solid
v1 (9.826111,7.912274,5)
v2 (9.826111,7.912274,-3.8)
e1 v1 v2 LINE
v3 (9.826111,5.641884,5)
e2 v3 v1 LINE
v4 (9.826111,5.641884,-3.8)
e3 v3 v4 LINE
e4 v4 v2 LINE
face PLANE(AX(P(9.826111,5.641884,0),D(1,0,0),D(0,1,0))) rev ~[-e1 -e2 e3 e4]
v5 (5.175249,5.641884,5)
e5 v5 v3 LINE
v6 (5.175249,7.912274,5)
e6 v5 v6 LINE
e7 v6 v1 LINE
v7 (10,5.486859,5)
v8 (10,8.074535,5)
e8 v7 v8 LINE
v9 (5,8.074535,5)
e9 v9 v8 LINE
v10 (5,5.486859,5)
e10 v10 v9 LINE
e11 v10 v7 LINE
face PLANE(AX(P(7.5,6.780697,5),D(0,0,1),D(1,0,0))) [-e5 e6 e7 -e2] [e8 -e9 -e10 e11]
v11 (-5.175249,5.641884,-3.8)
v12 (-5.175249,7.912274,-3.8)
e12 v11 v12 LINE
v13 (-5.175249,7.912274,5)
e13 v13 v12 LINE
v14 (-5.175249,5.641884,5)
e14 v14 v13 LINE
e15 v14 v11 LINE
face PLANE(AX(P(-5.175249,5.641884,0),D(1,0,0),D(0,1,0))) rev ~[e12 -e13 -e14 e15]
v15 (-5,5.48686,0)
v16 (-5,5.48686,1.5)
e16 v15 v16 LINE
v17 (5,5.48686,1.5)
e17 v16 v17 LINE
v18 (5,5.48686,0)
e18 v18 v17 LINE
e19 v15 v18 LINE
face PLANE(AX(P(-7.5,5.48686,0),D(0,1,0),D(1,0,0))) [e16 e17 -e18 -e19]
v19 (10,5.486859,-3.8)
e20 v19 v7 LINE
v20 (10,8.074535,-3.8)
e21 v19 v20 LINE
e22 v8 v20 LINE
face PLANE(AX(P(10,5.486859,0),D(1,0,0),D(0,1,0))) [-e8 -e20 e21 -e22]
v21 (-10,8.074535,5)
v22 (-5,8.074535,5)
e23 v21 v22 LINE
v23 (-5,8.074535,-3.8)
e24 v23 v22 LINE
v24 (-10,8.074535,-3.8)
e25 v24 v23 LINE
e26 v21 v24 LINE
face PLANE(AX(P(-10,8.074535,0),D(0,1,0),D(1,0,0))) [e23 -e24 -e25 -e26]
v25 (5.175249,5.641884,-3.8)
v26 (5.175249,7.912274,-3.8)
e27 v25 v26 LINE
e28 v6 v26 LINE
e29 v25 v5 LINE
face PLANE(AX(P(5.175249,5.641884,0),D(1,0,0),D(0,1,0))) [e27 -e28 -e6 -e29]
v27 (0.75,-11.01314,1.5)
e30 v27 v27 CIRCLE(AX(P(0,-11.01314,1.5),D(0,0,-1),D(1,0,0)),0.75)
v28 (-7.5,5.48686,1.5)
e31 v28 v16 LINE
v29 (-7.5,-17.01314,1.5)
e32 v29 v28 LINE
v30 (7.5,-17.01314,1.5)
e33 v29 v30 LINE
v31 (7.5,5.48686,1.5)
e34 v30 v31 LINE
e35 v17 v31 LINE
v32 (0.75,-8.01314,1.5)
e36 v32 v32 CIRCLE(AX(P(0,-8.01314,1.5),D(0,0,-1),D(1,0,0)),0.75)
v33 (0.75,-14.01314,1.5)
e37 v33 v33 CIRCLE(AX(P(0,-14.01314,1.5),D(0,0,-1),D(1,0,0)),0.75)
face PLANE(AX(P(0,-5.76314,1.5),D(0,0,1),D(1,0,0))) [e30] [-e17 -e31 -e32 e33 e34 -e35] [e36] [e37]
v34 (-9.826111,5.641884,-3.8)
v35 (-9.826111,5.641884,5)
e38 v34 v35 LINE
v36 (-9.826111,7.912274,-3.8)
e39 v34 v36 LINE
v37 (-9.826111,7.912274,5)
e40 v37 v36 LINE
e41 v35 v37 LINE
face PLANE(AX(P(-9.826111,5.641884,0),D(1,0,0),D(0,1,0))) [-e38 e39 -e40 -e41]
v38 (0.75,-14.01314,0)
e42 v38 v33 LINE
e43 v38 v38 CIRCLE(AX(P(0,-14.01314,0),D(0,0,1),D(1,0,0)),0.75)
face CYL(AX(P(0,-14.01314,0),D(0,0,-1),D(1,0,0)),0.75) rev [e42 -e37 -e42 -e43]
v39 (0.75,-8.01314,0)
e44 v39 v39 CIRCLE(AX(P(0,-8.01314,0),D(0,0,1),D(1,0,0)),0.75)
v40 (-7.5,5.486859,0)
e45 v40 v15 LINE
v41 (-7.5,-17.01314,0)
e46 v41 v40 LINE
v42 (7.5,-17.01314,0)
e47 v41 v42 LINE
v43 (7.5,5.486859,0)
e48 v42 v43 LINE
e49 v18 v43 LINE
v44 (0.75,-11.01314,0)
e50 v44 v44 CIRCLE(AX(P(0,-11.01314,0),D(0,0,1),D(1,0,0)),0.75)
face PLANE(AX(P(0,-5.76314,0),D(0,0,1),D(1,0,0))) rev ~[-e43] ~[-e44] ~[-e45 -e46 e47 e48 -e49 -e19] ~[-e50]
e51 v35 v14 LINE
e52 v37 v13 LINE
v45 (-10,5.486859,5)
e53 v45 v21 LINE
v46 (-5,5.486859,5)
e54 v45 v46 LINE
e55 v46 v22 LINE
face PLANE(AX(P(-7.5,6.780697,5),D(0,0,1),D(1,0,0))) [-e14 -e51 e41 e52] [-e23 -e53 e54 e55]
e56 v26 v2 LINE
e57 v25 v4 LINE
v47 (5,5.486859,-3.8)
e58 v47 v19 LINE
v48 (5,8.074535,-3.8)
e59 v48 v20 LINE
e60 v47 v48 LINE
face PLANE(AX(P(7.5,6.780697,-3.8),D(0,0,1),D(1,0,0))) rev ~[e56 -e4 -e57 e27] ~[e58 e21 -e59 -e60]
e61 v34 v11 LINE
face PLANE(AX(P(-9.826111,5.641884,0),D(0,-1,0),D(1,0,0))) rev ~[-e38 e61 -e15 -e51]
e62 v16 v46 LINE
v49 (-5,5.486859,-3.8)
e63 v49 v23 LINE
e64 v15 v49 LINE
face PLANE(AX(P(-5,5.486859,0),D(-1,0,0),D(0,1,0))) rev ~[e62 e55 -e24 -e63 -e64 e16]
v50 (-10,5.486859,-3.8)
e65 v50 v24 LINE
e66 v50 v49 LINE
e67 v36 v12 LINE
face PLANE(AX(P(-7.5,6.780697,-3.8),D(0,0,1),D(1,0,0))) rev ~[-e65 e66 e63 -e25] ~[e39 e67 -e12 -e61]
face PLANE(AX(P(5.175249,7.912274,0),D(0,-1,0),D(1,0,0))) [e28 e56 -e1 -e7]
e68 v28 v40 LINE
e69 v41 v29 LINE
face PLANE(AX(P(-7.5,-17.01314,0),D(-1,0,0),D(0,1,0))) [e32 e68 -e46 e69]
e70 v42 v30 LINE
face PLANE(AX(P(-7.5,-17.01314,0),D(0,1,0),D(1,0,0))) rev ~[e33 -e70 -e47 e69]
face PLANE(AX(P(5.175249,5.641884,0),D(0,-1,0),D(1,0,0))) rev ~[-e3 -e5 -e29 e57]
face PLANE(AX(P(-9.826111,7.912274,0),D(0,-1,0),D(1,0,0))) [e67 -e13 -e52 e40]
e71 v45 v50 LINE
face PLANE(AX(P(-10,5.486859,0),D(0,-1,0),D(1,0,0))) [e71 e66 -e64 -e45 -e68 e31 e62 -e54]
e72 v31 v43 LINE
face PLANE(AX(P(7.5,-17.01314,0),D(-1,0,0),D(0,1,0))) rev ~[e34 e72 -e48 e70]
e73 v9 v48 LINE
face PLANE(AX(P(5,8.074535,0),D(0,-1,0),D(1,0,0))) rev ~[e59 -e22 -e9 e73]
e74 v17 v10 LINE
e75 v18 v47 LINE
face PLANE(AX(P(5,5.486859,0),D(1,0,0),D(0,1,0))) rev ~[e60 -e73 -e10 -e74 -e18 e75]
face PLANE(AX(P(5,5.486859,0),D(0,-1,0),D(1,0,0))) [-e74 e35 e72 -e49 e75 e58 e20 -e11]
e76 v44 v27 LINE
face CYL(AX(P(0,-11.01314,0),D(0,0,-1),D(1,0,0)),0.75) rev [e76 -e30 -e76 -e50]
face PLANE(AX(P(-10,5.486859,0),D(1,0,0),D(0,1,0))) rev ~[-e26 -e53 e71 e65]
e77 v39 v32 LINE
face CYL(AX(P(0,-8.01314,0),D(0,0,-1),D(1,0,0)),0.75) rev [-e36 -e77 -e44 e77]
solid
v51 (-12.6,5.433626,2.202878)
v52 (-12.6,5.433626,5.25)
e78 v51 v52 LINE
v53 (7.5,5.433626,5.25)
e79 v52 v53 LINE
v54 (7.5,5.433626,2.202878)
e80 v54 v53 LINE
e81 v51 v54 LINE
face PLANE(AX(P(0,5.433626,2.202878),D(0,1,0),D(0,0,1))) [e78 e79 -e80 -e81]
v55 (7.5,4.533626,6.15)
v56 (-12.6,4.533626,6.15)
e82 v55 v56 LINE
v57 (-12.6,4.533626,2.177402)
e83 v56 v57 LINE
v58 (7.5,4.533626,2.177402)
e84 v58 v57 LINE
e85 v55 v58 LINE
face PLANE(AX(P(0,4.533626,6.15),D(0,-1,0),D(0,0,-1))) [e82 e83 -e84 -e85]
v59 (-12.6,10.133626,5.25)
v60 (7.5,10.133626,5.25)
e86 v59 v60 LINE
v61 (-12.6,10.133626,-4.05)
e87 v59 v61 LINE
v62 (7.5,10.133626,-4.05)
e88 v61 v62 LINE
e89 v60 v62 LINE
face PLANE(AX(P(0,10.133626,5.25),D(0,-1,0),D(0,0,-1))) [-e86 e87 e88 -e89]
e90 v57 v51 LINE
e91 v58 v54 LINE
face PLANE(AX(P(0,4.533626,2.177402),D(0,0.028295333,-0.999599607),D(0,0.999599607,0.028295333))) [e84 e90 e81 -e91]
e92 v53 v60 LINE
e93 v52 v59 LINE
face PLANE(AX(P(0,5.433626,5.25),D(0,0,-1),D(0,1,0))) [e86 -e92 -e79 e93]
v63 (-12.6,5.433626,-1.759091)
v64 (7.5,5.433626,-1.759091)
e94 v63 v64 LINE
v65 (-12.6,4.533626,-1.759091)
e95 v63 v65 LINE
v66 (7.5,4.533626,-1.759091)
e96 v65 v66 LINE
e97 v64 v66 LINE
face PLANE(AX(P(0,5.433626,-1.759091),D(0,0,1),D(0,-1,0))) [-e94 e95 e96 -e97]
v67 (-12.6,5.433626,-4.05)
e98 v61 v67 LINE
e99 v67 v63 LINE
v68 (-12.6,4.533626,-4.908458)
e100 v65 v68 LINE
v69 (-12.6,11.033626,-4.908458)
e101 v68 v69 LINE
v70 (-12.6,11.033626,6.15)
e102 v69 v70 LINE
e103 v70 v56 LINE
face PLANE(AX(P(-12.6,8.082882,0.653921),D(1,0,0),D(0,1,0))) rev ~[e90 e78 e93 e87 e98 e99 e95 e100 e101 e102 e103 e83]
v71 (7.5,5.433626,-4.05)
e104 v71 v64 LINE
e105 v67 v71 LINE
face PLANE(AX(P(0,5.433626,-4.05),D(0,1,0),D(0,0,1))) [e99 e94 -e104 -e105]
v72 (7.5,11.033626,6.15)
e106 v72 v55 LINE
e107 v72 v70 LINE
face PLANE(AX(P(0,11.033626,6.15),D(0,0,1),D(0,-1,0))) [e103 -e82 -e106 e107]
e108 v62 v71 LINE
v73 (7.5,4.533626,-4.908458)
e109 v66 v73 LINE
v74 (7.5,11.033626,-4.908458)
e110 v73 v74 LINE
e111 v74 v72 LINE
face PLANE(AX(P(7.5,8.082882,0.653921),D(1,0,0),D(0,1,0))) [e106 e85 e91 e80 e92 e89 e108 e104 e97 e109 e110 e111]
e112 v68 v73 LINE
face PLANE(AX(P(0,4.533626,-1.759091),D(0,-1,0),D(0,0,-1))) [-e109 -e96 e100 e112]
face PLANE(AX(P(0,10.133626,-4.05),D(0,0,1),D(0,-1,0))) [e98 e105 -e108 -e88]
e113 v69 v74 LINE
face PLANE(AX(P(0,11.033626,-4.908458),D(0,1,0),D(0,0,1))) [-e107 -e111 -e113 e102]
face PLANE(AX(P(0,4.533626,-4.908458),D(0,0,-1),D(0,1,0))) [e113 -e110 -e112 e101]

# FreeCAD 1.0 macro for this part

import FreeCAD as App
import Part
import Sketcher
from FreeCAD import Vector
Q = App.Units.Quantity


def add_polygon(sketch, points):
    """Adds a closed chain of lines whose ends are joined by coincident constraints."""
    first, n = sketch.GeometryCount, len(points)
    for a, b in zip(points, points[1:] + points[:1]):
        sketch.addGeometry(Part.LineSegment(App.Vector(*a, 0), App.Vector(*b, 0)), False)
    for i in range(n):
        sketch.addConstraint(Sketcher.Constraint("Coincident", first + i, 2, first + (i + 1) % n, 1))

doc = App.newDocument("Part")
body = doc.addObject("PartDesign::Body", "Body")

sketch1 = body.newObject("Sketcher::SketchObject", "Sketch")
sketch1.AttachmentSupport = (doc.getObject("XY_Plane"), [""])
sketch1.MapMode = "FlatFace"
add_polygon(sketch1, [(-7.5, 5.48686), (-7.5, -17.01314), (7.5, -17.01314), (7.5, 5.48686)])
sketch1.addConstraint(Sketcher.Constraint("Vertical", 0))
sketch1.addConstraint(Sketcher.Constraint("Horizontal", 1))
sketch1.addConstraint(Sketcher.Constraint("Vertical", 2))
sketch1.addConstraint(Sketcher.Constraint("Horizontal", 3))
sketch1.addConstraint(Sketcher.Constraint("DistanceX", 1, 1, 1, 2, Q("15 mm")))
sketch1.addConstraint(Sketcher.Constraint("DistanceY", 0, 2, 0, 1, Q("22.5 mm")))
sketch1.addConstraint(Sketcher.Constraint("DistanceX", 0, 2, -1, 1, Q("7.5 mm")))
sketch1.addConstraint(Sketcher.Constraint("DistanceY", 0, 2, -1, 1, Q("17.01314 mm")))
pad1 = body.newObject("PartDesign::Pad", "Pad")
pad1.Profile = sketch1
pad1.Length = 1.5

sketch2 = body.newObject("Sketcher::SketchObject", "Sketch001")
sketch2.AttachmentSupport = (doc.getObject("XY_Plane"), [""])
sketch2.MapMode = "FlatFace"
add_polygon(sketch2, [(5, 8.074535), (5, 5.486859), (10, 5.486859), (10, 8.074535)])
add_polygon(sketch2, [(9.826111, 5.641884), (5.175249, 5.641884), (5.175249, 7.912274), (9.826111, 7.912274)])
add_polygon(sketch2, [(-10, 8.074535), (-10, 5.486859), (-5, 5.486859), (-5, 8.074535)])
add_polygon(sketch2, [(-5.175249, 5.641884), (-9.826111, 5.641884), (-9.826111, 7.912274), (-5.175249, 7.912274)])
sketch2.addConstraint(Sketcher.Constraint("Vertical", 0))
sketch2.addConstraint(Sketcher.Constraint("Horizontal", 1))
sketch2.addConstraint(Sketcher.Constraint("Vertical", 2))
sketch2.addConstraint(Sketcher.Constraint("Horizontal", 3))
sketch2.addConstraint(Sketcher.Constraint("Horizontal", 4))
sketch2.addConstraint(Sketcher.Constraint("Vertical", 5))
sketch2.addConstraint(Sketcher.Constraint("Horizontal", 6))
sketch2.addConstraint(Sketcher.Constraint("Vertical", 7))
sketch2.addConstraint(Sketcher.Constraint("Vertical", 8))
sketch2.addConstraint(Sketcher.Constraint("Horizontal", 9))
sketch2.addConstraint(Sketcher.Constraint("Vertical", 10))
sketch2.addConstraint(Sketcher.Constraint("Horizontal", 11))
sketch2.addConstraint(Sketcher.Constraint("Horizontal", 12))
sketch2.addConstraint(Sketcher.Constraint("Vertical", 13))
sketch2.addConstraint(Sketcher.Constraint("Horizontal", 14))
sketch2.addConstraint(Sketcher.Constraint("Vertical", 15))
sketch2.addConstraint(Sketcher.Constraint("Symmetric", 1, 2, 8, 2, -2))
sketch2.addConstraint(Sketcher.Constraint("Symmetric", 3, 2, 10, 2, -2))
sketch2.addConstraint(Sketcher.Constraint("Symmetric", 7, 2, 12, 2, -2))
sketch2.addConstraint(Sketcher.Constraint("Symmetric", 5, 2, 14, 2, -2))
sketch2.addConstraint(Sketcher.Constraint("DistanceX", 1, 1, 1, 2, Q("5 mm")))
sketch2.addConstraint(Sketcher.Constraint("DistanceX", -1, 1, 0, 2, Q("5 mm")))
sketch2.addConstraint(Sketcher.Constraint("DistanceX", 4, 2, 4, 1, Q("4.650861 mm")))
sketch2.addConstraint(Sketcher.Constraint("DistanceY", 5, 1, 5, 2, Q("2.27039 mm")))
sketch2.addConstraint(Sketcher.Constraint("DistanceY", 0, 2, 0, 1, Q("2.587675 mm")))
sketch2.addConstraint(Sketcher.Constraint("DistanceY", -1, 1, 0, 2, Q("5.486859 mm")))
sketch2.addConstraint(Sketcher.Constraint("DistanceX", -1, 1, 4, 2, Q("5.175249 mm")))
sketch2.addConstraint(Sketcher.Constraint("DistanceY", 4, 2, 3, 2, Q("2.432651 mm")))
pad2 = body.newObject("PartDesign::Pad", "Pad001")
pad2.Profile = sketch2
pad2.Type = "TwoLengths"
pad2.Length = 5
pad2.Length2 = 3.8

sketch3 = body.newObject("Sketcher::SketchObject", "Sketch002")
sketch3.AttachmentSupport = (doc.getObject("XY_Plane"), [""])
sketch3.MapMode = "FlatFace"
sketch3.addGeometry(Part.Circle(Vector(0, -14.01314, 0), Vector(0, 0, 1), 0.75), False)
sketch3.addGeometry(Part.Circle(Vector(0, -11.01314, 0), Vector(0, 0, 1), 0.75), False)
sketch3.addGeometry(Part.Circle(Vector(0, -8.01314, 0), Vector(0, 0, 1), 0.75), False)
sketch3.addConstraint(Sketcher.Constraint("Equal", 0, 1))
sketch3.addConstraint(Sketcher.Constraint("Equal", 1, 2))
sketch3.addConstraint(Sketcher.Constraint("PointOnObject", 0, 3, -2))
sketch3.addConstraint(Sketcher.Constraint("PointOnObject", 1, 3, -2))
sketch3.addConstraint(Sketcher.Constraint("PointOnObject", 2, 3, -2))
sketch3.addConstraint(Sketcher.Constraint("Diameter", 0, Q("1.5 mm")))
sketch3.addConstraint(Sketcher.Constraint("DistanceY", 0, 3, 1, 3, Q("3 mm")))
sketch3.addConstraint(Sketcher.Constraint("DistanceY", 1, 3, 2, 3, Q("3 mm")))
sketch3.addConstraint(Sketcher.Constraint("DistanceY", 0, 3, -1, 1, Q("14.01314 mm")))
pocket1 = body.newObject("PartDesign::Pocket", "Pocket")
pocket1.Profile = sketch3
pocket1.Length = 25
pocket1.Reversed = True
body2 = doc.addObject("PartDesign::Body", "Body001")

sketch4 = body2.newObject("Sketcher::SketchObject", "Sketch003")
sketch4.AttachmentSupport = (doc.getObject("YZ_Plane001"), [""])
sketch4.MapMode = "FlatFace"
add_polygon(sketch4, [(4.533626, 2.177402), (5.433626, 2.202878), (5.433626, 5.25), (10.133626, 5.25), (10.133626, -4.05), (5.433626, -4.05), (5.433626, -1.759091), (4.533626, -1.759091), (4.533626, -4.908458), (11.033626, -4.908458), (11.033626, 6.15), (4.533626, 6.15)])
sketch4.addConstraint(Sketcher.Constraint("Vertical", 1))
sketch4.addConstraint(Sketcher.Constraint("Horizontal", 2))
sketch4.addConstraint(Sketcher.Constraint("Vertical", 3))
sketch4.addConstraint(Sketcher.Constraint("Horizontal", 4))
sketch4.addConstraint(Sketcher.Constraint("Vertical", 5))
sketch4.addConstraint(Sketcher.Constraint("Horizontal", 6))
sketch4.addConstraint(Sketcher.Constraint("Vertical", 7))
sketch4.addConstraint(Sketcher.Constraint("Horizontal", 8))
sketch4.addConstraint(Sketcher.Constraint("Vertical", 9))
sketch4.addConstraint(Sketcher.Constraint("Horizontal", 10))
sketch4.addConstraint(Sketcher.Constraint("Vertical", 11))
sketch4.addConstraint(Sketcher.Constraint("Vertical", 1, 2, 4, 2))
sketch4.addConstraint(Sketcher.Constraint("Vertical", 7, 2, 10, 2))
sketch4.addConstraint(Sketcher.Constraint("DistanceX", 2, 1, 2, 2, Q("4.7 mm")))
sketch4.addConstraint(Sketcher.Constraint("DistanceX", 6, 2, 6, 1, Q("0.9 mm")))
sketch4.addConstraint(Sketcher.Constraint("DistanceX", 8, 1, 8, 2, Q("6.5 mm")))
sketch4.addConstraint(Sketcher.Constraint("DistanceY", 3, 2, 3, 1, Q("9.3 mm")))
sketch4.addConstraint(Sketcher.Constraint("DistanceY", 2, 2, 9, 2, Q("0.9 mm")))
sketch4.addConstraint(Sketcher.Constraint("DistanceY", -1, 1, 1, 2, Q("5.25 mm")))
sketch4.addConstraint(Sketcher.Constraint("DistanceY", 11, 2, 11, 1, Q("3.972598 mm")))
sketch4.addConstraint(Sketcher.Constraint("DistanceY", 1, 1, 1, 2, Q("3.047122 mm")))
sketch4.addConstraint(Sketcher.Constraint("DistanceY", 5, 1, 5, 2, Q("2.290909 mm")))
sketch4.addConstraint(Sketcher.Constraint("DistanceY", 9, 1, 9, 2, Q("11.058458 mm")))
sketch4.addConstraint(Sketcher.Constraint("DistanceX", -1, 1, 0, 2, Q("5.433626 mm")))
pad3 = body2.newObject("PartDesign::Pad", "Pad002")
pad3.Profile = sketch4
pad3.Type = "TwoLengths"
pad3.Length = 7.5
pad3.Length2 = 12.6

doc.recompute()
